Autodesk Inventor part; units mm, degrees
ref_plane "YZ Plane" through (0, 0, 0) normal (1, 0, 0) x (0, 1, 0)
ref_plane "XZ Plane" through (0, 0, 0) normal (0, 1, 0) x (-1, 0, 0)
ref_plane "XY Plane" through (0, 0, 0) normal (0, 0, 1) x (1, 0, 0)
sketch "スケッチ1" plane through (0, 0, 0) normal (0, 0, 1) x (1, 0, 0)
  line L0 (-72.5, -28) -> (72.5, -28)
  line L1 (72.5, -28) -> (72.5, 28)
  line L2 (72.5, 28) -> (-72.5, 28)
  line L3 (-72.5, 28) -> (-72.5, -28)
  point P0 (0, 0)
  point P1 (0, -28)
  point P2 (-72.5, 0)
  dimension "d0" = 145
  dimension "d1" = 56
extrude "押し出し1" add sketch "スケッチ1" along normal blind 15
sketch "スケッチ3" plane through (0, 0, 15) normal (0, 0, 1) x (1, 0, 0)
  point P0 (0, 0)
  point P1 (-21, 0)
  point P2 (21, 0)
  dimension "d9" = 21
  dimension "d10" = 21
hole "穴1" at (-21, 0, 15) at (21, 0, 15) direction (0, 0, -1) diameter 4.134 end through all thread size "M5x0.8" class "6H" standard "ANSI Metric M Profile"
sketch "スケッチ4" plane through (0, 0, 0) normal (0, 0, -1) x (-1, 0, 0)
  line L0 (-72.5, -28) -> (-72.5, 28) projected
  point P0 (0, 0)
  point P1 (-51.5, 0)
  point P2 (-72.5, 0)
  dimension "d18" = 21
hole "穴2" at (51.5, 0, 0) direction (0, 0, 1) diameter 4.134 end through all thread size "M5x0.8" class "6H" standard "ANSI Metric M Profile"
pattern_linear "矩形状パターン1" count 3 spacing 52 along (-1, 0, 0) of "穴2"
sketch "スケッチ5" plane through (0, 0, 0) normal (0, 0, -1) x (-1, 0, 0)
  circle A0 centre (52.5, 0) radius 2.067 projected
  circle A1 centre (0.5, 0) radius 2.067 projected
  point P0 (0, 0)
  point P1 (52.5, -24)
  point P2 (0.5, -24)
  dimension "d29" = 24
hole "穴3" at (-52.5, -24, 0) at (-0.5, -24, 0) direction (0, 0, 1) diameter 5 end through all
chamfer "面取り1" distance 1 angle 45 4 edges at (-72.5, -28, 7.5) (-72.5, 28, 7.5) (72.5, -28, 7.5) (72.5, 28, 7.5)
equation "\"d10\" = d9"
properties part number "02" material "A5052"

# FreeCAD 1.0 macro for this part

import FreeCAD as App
import Part
import Sketcher

V = App.Vector
Q = App.Units.Quantity


def edges_at(feature, points):
    """Names of the edges that pass closest to the given points."""
    edges = feature.Shape.Edges
    near = lambda p: min(range(len(edges)), key=lambda i: edges[i].distToShape(Part.Vertex(*p))[0])
    return sorted({f"Edge{near(p) + 1}" for p in points})


def add_polygon(sketch, points):
    """Adds a closed chain of lines whose ends are joined by coincident constraints."""
    first, n = sketch.GeometryCount, len(points)
    for a, b in zip(points, points[1:] + points[:1]):
        sketch.addGeometry(Part.LineSegment(App.Vector(*a, 0), App.Vector(*b, 0)), False)
    for i in range(n):
        sketch.addConstraint(Sketcher.Constraint("Coincident", first + i, 2, first + (i + 1) % n, 1))

doc = App.newDocument("Part")
body = doc.addObject("PartDesign::Body", "Body")

# Sketch on XY plane
sketch1 = body.newObject("Sketcher::SketchObject", "Sketch")
sketch1.AttachmentSupport = (doc.getObject("XY_Plane"), [""])
sketch1.MapMode = "FlatFace"
add_polygon(sketch1, [(-72.5, 28), (-72.5, -28), (72.5, -28), (72.5, 28)])  # lines 0-3
sketch1.addConstraint([
    Sketcher.Constraint("Vertical", 0),
    Sketcher.Constraint("Horizontal", 1),
    Sketcher.Constraint("Vertical", 2),
    Sketcher.Constraint("Horizontal", 3),
    Sketcher.Constraint("Symmetric", 0, 2, 2, 2, -1, 1),
    Sketcher.Constraint("DistanceX", 1, 1, 1, 2, Q("145 mm")),
    Sketcher.Constraint("DistanceY", 0, 2, 0, 1, Q("56 mm")),
])
pad1 = body.newObject("PartDesign::Pad", "Pad")
pad1.Profile = sketch1
pad1.Length = 15

# Sketch on XY plane
sketch2 = body.newObject("Sketcher::SketchObject", "Sketch001")
sketch2.AttachmentSupport = (doc.getObject("XY_Plane"), [""])
sketch2.MapMode = "FlatFace"
sketch2.AttachmentOffset = App.Placement(V(0, 0, 15), App.Rotation())
sketch2.addGeometry([
    Part.Circle(V(-21, 0, 0), V(0, 0, 1), 2.067),
    Part.Circle(V(21, 0, 0), V(0, 0, 1), 2.067),
], False)
sketch2.addConstraint([
    Sketcher.Constraint("Equal", 0, 1),
    Sketcher.Constraint("Symmetric", 0, 3, 1, 3, -1, 1),
    Sketcher.Constraint("PointOnObject", 0, 3, -1),
    Sketcher.Constraint("Diameter", 0, Q("4.134 mm")),
    Sketcher.Constraint("DistanceX", 0, 3, -1, 1, Q("21 mm")),
])
doc.recompute()
hole = body.newObject("PartDesign::Hole", "Hole")
hole.Profile = sketch2
hole.ThreadType = "None"
hole.Diameter = 4.134
hole.DepthType = "ThroughAll"

# Sketch on XY plane
sketch3 = body.newObject("Sketcher::SketchObject", "Sketch002")
sketch3.AttachmentSupport = (doc.getObject("XY_Plane"), [""])
sketch3.MapMode = "FlatFace"
sketch3.addGeometry(Part.Circle(V(51.5, 0, 0), V(0, 0, 1), 2.067), False)
sketch3.addConstraint([
    Sketcher.Constraint("PointOnObject", 0, 3, -1),
    Sketcher.Constraint("Diameter", 0, Q("4.134 mm")),
    Sketcher.Constraint("DistanceX", -1, 1, 0, 3, Q("51.5 mm")),
])
doc.recompute()
hole2 = body.newObject("PartDesign::Hole", "Hole001")
hole2.Profile = sketch3
hole2.ThreadType = "None"
hole2.Diameter = 4.134
hole2.DepthType = "ThroughAll"
hole2.Reversed = True
doc.recompute()

linearpattern = body.newObject("PartDesign::LinearPattern", "LinearPattern")
linearpattern.Originals = [hole2]
linearpattern.Direction = (doc.getObject("X_Axis"), [""])
linearpattern.Mode = "offset"
linearpattern.Offset = 52
linearpattern.Occurrences = 3
linearpattern.Reversed = True
body.Tip = linearpattern

# Sketch on XY plane
sketch4 = body.newObject("Sketcher::SketchObject", "Sketch003")
sketch4.AttachmentSupport = (doc.getObject("XY_Plane"), [""])
sketch4.MapMode = "FlatFace"
sketch4.addGeometry([
    Part.Circle(V(-52.5, -24, 0), V(0, 0, 1), 2.5),
    Part.Circle(V(-0.5, -24, 0), V(0, 0, 1), 2.5),
], False)
sketch4.addConstraint([
    Sketcher.Constraint("Equal", 0, 1),
    Sketcher.Constraint("Horizontal", 0, 3, 1, 3),
    Sketcher.Constraint("Diameter", 0, Q("5 mm")),
    Sketcher.Constraint("DistanceY", 0, 3, -1, 1, Q("24 mm")),
    Sketcher.Constraint("DistanceX", 0, 3, 1, 3, Q("52 mm")),
    Sketcher.Constraint("DistanceX", 0, 3, -1, 1, Q("52.5 mm")),
])
doc.recompute()
hole3 = body.newObject("PartDesign::Hole", "Hole002")
hole3.Profile = sketch4
hole3.ThreadType = "None"
hole3.Diameter = 5
hole3.DepthType = "ThroughAll"
hole3.Reversed = True
doc.recompute()

chamfer = body.newObject("PartDesign::Chamfer", "Chamfer")
chamfer.Base = (hole3, edges_at(hole3, [
    (-72.5, -28, 7.5),
    (-72.5, 28, 7.5),
    (72.5, -28, 7.5),
    (72.5, 28, 7.5),
]))
chamfer.Size = 1

doc.recompute()
